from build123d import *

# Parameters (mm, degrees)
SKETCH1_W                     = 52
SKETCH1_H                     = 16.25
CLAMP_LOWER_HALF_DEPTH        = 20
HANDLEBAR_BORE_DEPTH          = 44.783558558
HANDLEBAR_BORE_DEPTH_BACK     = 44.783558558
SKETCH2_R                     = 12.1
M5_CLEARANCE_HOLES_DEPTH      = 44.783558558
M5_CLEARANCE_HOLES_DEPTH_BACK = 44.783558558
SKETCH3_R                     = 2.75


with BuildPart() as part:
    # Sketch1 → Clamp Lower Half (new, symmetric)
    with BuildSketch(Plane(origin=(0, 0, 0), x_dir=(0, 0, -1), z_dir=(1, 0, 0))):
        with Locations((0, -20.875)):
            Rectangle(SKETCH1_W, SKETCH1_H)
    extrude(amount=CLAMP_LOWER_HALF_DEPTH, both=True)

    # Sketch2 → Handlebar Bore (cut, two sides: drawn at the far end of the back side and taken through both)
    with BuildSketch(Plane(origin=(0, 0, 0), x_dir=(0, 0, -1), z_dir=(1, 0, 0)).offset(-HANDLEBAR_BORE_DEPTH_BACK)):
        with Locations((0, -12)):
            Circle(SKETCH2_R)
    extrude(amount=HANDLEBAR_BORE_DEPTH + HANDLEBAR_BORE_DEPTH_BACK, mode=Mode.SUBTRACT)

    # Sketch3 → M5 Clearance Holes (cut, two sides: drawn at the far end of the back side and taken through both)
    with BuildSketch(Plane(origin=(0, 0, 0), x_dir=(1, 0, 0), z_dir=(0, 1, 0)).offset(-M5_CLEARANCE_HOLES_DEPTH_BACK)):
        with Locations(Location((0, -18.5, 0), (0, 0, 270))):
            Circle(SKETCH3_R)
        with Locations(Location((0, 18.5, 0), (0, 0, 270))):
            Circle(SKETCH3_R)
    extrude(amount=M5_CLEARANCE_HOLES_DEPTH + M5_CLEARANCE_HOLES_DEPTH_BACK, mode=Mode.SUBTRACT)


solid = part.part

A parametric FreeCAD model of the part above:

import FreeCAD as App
import Part
import Sketcher
from FreeCAD import Vector
Q = App.Units.Quantity


def add_polygon(sketch, points):
    """Adds a closed chain of lines whose ends are joined by coincident constraints."""
    first, n = sketch.GeometryCount, len(points)
    for a, b in zip(points, points[1:] + points[:1]):
        sketch.addGeometry(Part.LineSegment(App.Vector(*a, 0), App.Vector(*b, 0)), False)
    for i in range(n):
        sketch.addConstraint(Sketcher.Constraint("Coincident", first + i, 2, first + (i + 1) % n, 1))

doc = App.newDocument("Part")
params = doc.addObject("Spreadsheet::Sheet", "Params")
for row, (alias, value) in enumerate([
    ("sketch1_height", "52 mm"),
    ("sketch1_width", "16.25 mm"),
    ("pad1_length", "40 mm"),
    ("sketch2_diameter", "24.2 mm"),
    ("sketch3_diameter", "5.5 mm"),
], start=1):
    params.set(f"A{row}", alias)
    params.set(f"B{row}", "=" + value)
    params.setAlias(f"B{row}", alias)

body = doc.addObject("PartDesign::Body", "Body")

# Sketch on YZ plane
sketch1 = doc.addObject("Sketcher::SketchObject", "Sketch")
body.addObject(sketch1)
sketch1.AttachmentSupport = (doc.YZ_Plane, [""])
sketch1.MapMode = "FlatFace"
add_polygon(sketch1, [(-13, 26), (-29, 26), (-29, -26), (-13, -26)])  # lines 0-3
sketch1.addConstraint(Sketcher.Constraint("Horizontal", 0))
sketch1.addConstraint(Sketcher.Constraint("Vertical", 1))
sketch1.addConstraint(Sketcher.Constraint("Horizontal", 2))
sketch1.addConstraint(Sketcher.Constraint("Vertical", 3))
sketch1.addConstraint(Sketcher.Constraint("DistanceY", 1, 2, 1, 1, Q("52 mm")))
sketch1.addConstraint(Sketcher.Constraint("DistanceX", 0, 2, -1, 1, Q("29 mm")))
sketch1.addConstraint(Sketcher.Constraint("DistanceY", -1, 1, 0, 2, Q("26 mm")))
sketch1.addConstraint(Sketcher.Constraint("DistanceX", 0, 2, 0, 1, Q("16.25 mm")))
sketch1.setExpression("Constraints[8]", "Params.sketch1_height")
sketch1.setExpression("Constraints[11]", "Params.sketch1_width")
pad1 = doc.addObject("PartDesign::Pad", "Pad")
body.addObject(pad1)
pad1.Profile = sketch1
pad1.setExpression("Length", "Params.pad1_length")
pad1.Midplane = True

# Sketch on YZ plane
sketch2 = doc.addObject("Sketcher::SketchObject", "Sketch001")
body.addObject(sketch2)
sketch2.AttachmentSupport = (doc.YZ_Plane, [""])
sketch2.MapMode = "FlatFace"
sketch2.addGeometry(Part.Circle(Vector(-12, 0, 0), Vector(0, 0, 1), 12), False)
sketch2.addConstraint(Sketcher.Constraint("PointOnObject", 0, 3, -1))
sketch2.addConstraint(Sketcher.Constraint("Diameter", 0, Q("24.2 mm")))
sketch2.addConstraint(Sketcher.Constraint("DistanceX", 0, 3, -1, 1, Q("12 mm")))
sketch2.setExpression("Constraints[1]", "Params.sketch2_diameter")
pocket1 = doc.addObject("PartDesign::Pocket", "Pocket")
body.addObject(pocket1)
pocket1.Profile = sketch2
pocket1.Type = "ThroughAll"
pocket1.Midplane = True

# Sketch on XZ plane
sketch3 = doc.addObject("Sketcher::SketchObject", "Sketch002")
body.addObject(sketch3)
sketch3.AttachmentSupport = (doc.XZ_Plane, [""])
sketch3.MapMode = "FlatFace"
sketch3.addGeometry(Part.Circle(Vector(0, 18.5, 0), Vector(0, 0, 1), 2.8), False)
sketch3.addGeometry(Part.Circle(Vector(0, -18.5, 0), Vector(0, 0, 1), 2.8), False)
sketch3.addConstraint(Sketcher.Constraint("Equal", 0, 1))
sketch3.addConstraint(Sketcher.Constraint("Symmetric", 0, 3, 1, 3, -1, 1))
sketch3.addConstraint(Sketcher.Constraint("PointOnObject", 0, 3, -2))
sketch3.addConstraint(Sketcher.Constraint("Diameter", 0, Q("5.5 mm")))
sketch3.addConstraint(Sketcher.Constraint("DistanceY", 1, 3, 0, 3, Q("37 mm")))
sketch3.setExpression("Constraints[3]", "Params.sketch3_diameter")
pocket2 = doc.addObject("PartDesign::Pocket", "Pocket001")
body.addObject(pocket2)
pocket2.Profile = sketch3
pocket2.Type = "ThroughAll"
pocket2.Midplane = True

doc.recompute()
